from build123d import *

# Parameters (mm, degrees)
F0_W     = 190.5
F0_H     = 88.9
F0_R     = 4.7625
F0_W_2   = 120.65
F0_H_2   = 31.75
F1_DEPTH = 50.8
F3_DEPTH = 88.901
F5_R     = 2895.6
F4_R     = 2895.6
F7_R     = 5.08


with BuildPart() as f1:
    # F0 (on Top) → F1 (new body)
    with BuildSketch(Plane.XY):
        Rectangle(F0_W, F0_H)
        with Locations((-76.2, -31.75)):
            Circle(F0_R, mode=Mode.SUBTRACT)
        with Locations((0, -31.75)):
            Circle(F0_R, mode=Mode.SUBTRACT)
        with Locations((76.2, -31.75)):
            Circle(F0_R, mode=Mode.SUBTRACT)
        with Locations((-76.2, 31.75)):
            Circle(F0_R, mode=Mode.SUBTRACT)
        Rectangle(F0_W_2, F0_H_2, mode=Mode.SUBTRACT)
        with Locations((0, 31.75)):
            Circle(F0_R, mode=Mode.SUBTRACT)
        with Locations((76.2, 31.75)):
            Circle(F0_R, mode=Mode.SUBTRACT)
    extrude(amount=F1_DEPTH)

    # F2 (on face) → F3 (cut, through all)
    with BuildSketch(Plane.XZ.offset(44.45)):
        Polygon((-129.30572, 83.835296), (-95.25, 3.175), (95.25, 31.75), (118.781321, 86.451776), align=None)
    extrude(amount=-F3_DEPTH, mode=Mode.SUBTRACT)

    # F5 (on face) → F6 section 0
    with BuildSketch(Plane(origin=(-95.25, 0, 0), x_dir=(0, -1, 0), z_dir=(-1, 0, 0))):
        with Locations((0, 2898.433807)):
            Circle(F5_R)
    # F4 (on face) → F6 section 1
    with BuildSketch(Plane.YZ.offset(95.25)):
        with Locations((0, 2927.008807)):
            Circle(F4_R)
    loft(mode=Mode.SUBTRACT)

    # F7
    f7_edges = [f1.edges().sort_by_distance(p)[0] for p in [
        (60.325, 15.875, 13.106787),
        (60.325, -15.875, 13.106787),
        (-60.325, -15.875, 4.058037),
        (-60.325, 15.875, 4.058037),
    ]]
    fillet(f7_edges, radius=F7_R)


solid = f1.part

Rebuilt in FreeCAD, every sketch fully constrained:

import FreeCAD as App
import Part
import Sketcher
from FreeCAD import Vector
Q = App.Units.Quantity


def edges_at(feature, points):
    """Names of the edges that pass closest to the given points."""
    edges = feature.Shape.Edges
    near = lambda p: min(range(len(edges)), key=lambda i: edges[i].distToShape(Part.Vertex(*p))[0])
    return sorted({f"Edge{near(p) + 1}" for p in points})


def add_polygon(sketch, points):
    """Adds a closed chain of lines whose ends are joined by coincident constraints."""
    first, n = sketch.GeometryCount, len(points)
    for a, b in zip(points, points[1:] + points[:1]):
        sketch.addGeometry(Part.LineSegment(App.Vector(*a, 0), App.Vector(*b, 0)), False)
    for i in range(n):
        sketch.addConstraint(Sketcher.Constraint("Coincident", first + i, 2, first + (i + 1) % n, 1))

doc = App.newDocument("Part")
body = doc.addObject("PartDesign::Body", "Body")

# Sketch on XY plane
sketch1 = doc.addObject("Sketcher::SketchObject", "Sketch")
body.addObject(sketch1)
sketch1.AttachmentSupport = (doc.XY_Plane, [""])
sketch1.MapMode = "FlatFace"
add_polygon(sketch1, [(-95.25, 44.45), (-95.25, -44.45), (95.25, -44.45), (95.25, 44.45)])  # lines 0-3
sketch1.addGeometry(Part.Circle(Vector(-76.2, -31.75, 0), Vector(0, 0, 1), 4.7625), False)  # 4
sketch1.addGeometry(Part.Circle(Vector(0, -31.75, 0), Vector(0, 0, 1), 4.7625), False)  # 5
sketch1.addGeometry(Part.Circle(Vector(76.2, -31.75, 0), Vector(0, 0, 1), 4.7625), False)  # 6
sketch1.addGeometry(Part.Circle(Vector(-76.2, 31.75, 0), Vector(0, 0, 1), 4.7625), False)  # 7
add_polygon(sketch1, [(60.325, -15.875), (-60.325, -15.875), (-60.325, 15.875), (60.325, 15.875)])  # lines 8-11
sketch1.addGeometry(Part.Circle(Vector(0, 31.75, 0), Vector(0, 0, 1), 4.7625), False)  # 12
sketch1.addGeometry(Part.Circle(Vector(76.2, 31.75, 0), Vector(0, 0, 1), 4.7625), False)  # 13
sketch1.addConstraint([
    Sketcher.Constraint("Vertical", 0),
    Sketcher.Constraint("Horizontal", 1),
    Sketcher.Constraint("Vertical", 2),
    Sketcher.Constraint("Horizontal", 3),
    Sketcher.Constraint("Horizontal", 8),
    Sketcher.Constraint("Vertical", 9),
    Sketcher.Constraint("Horizontal", 10),
    Sketcher.Constraint("Vertical", 11),
    Sketcher.Constraint("Equal", 4, 5),
    Sketcher.Constraint("Equal", 5, 6),
    Sketcher.Constraint("Equal", 6, 7),
    Sketcher.Constraint("Equal", 7, 12),
    Sketcher.Constraint("Equal", 12, 13),
    Sketcher.Constraint("Symmetric", 6, 3, 7, 3, -1, 1),
    Sketcher.Constraint("Symmetric", 5, 3, 12, 3, -1, 1),
    Sketcher.Constraint("Symmetric", 4, 3, 13, 3, -1, 1),
    Sketcher.Constraint("Symmetric", 0, 2, 2, 2, -1, 1),
    Sketcher.Constraint("Symmetric", 8, 2, 10, 2, -1, 1),
    Sketcher.Constraint("Symmetric", 4, 3, 6, 3, -2),
    Sketcher.Constraint("PointOnObject", 5, 3, -2),
    Sketcher.Constraint("Horizontal", 4, 3, 5, 3),
    Sketcher.Constraint("Diameter", 4, Q("0.375 in")),
    Sketcher.Constraint("DistanceX", 1, 1, 1, 2, Q("7.5 in")),
    Sketcher.Constraint("DistanceY", 0, 2, 0, 1, Q("3.5 in")),
    Sketcher.Constraint("DistanceX", 4, 3, -1, 1, Q("3 in")),
    Sketcher.Constraint("DistanceY", 0, 2, 7, 3, Q("3 in")),
    Sketcher.Constraint("DistanceX", 8, 2, 8, 1, Q("4.75 in")),
    Sketcher.Constraint("DistanceY", 9, 1, 9, 2, Q("1.25 in")),
])
pad1 = doc.addObject("PartDesign::Pad", "Pad")
body.addObject(pad1)
pad1.Profile = sketch1
pad1.Length = Q("2 in")

# Sketch on XZ plane
sketch2 = doc.addObject("Sketcher::SketchObject", "Sketch001")
body.addObject(sketch2)
sketch2.AttachmentSupport = (doc.XZ_Plane, [""])
sketch2.MapMode = "FlatFace"
sketch2.AttachmentOffset = App.Placement(Vector(0, 0, 1.75 * 25.4), App.Rotation())
add_polygon(sketch2, [(-129.30572, 83.835296), (-95.25, 3.175), (95.25, 31.75), (118.781321, 86.451776)])  # lines 0-3
sketch2.addConstraint([
    Sketcher.Constraint("DistanceX", 0, 2, 1, 2, Q("7.5 in")),
    Sketcher.Constraint("DistanceX", 0, 2, -1, 1, Q("3.75 in")),
    Sketcher.Constraint("DistanceY", -1, 1, 1, 2, Q("1.25 in")),
    Sketcher.Constraint("DistanceY", -1, 1, 0, 2, Q("0.125 in")),
    Sketcher.Constraint("Distance", 2, 59.548362),
    Sketcher.Constraint("Distance", 3, 248.100838),
    Sketcher.Constraint("DistanceX", -1, 1, 2, 2, 118.781321),
    Sketcher.Constraint("DistanceX", 3, 2, -1, 1, 129.30572),
])
pocket1 = doc.addObject("PartDesign::Pocket", "Pocket")
body.addObject(pocket1)
pocket1.Profile = sketch2
pocket1.Type = "ThroughAll"

# Sketch on YZ plane
sketch3 = doc.addObject("Sketcher::SketchObject", "Sketch002")
body.addObject(sketch3)
sketch3.AttachmentSupport = (doc.YZ_Plane, [""])
sketch3.MapMode = "FlatFace"
sketch3.AttachmentOffset = App.Placement(Vector(0, 0, -3.75 * 25.4), App.Rotation())
sketch3.addGeometry(Part.Circle(Vector(0, 2898.433807, 0), Vector(0, 0, 1), 2895.6), False)
sketch3.addConstraint([
    Sketcher.Constraint("PointOnObject", 0, 3, -2),
    Sketcher.Constraint("Diameter", 0, Q("228 in")),
    Sketcher.Constraint("DistanceY", -1, 1, 0, 3, 2898.433807),
])

# Sketch on YZ plane
sketch4 = doc.addObject("Sketcher::SketchObject", "Sketch003")
body.addObject(sketch4)
sketch4.AttachmentSupport = (doc.YZ_Plane, [""])
sketch4.MapMode = "FlatFace"
sketch4.AttachmentOffset = App.Placement(Vector(0, 0, 3.75 * 25.4), App.Rotation())
sketch4.addGeometry(Part.Circle(Vector(0, 2927.008807, 0), Vector(0, 0, 1), 2895.6), False)
sketch4.addConstraint([
    Sketcher.Constraint("PointOnObject", 0, 3, -2),
    Sketcher.Constraint("Diameter", 0, Q("228 in")),
    Sketcher.Constraint("DistanceY", -1, 1, 0, 3, 2927.008807),
])

subtractiveloft = doc.addObject("PartDesign::SubtractiveLoft", "SubtractiveLoft")
body.addObject(subtractiveloft)
subtractiveloft.Profile = sketch3
subtractiveloft.Sections = [sketch4]
doc.recompute()

fillet = doc.addObject("PartDesign::Fillet", "Fillet")
body.addObject(fillet)
fillet.Base = (subtractiveloft, edges_at(subtractiveloft, [
    (60.325, 15.875, 13.107),
    (60.325, -15.875, 13.107),
    (-60.325, -15.875, 4.058),
    (-60.325, 15.875, 4.058),
]))
fillet.Radius = Q("0.2 in")

doc.recompute()
